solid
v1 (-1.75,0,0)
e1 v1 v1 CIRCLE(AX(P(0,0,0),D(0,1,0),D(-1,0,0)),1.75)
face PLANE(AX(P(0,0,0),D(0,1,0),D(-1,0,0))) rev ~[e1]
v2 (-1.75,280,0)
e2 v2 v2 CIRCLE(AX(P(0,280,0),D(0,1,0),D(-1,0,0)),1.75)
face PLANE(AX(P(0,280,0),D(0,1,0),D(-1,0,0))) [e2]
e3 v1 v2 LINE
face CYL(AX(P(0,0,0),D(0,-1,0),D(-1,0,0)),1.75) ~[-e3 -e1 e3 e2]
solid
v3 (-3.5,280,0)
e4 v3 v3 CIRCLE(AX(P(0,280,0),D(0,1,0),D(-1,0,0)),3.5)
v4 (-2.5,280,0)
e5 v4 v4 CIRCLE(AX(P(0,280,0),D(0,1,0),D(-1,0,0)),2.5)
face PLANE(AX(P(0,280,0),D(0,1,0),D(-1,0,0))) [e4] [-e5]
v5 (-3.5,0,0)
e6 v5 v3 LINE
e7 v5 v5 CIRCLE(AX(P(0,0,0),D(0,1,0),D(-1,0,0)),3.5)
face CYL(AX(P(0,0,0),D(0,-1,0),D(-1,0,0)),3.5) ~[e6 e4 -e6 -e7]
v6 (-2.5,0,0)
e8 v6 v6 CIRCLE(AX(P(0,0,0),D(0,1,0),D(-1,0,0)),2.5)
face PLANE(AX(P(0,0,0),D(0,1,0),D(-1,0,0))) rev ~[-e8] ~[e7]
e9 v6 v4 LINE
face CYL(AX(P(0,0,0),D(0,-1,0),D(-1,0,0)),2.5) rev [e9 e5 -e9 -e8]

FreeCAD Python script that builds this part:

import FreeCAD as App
import Part
import Sketcher

V = App.Vector
Q = App.Units.Quantity

doc = App.newDocument("Part")
params = doc.addObject("Spreadsheet::Sheet", "Params")
for row, (alias, value) in enumerate([
    ("sketch1_diameter", "3.5 mm"),
    ("pad1_length", "280 mm"),
    ("sketch2_diameter", "7 mm"),
    ("sketch2_diameter2", "5 mm"),
    ("pad2_length", "280 mm"),
], start=1):
    params.set(f"A{row}", alias)
    params.set(f"B{row}", "=" + value)
    params.setAlias(f"B{row}", alias)

body = doc.addObject("PartDesign::Body", "Body")
body.AllowCompound = True

# Sketch on XZ plane
sketch1 = body.newObject("Sketcher::SketchObject", "Sketch")
sketch1.AttachmentSupport = (doc.getObject("XZ_Plane"), [""])
sketch1.MapMode = "FlatFace"
sketch1.addGeometry(Part.Circle(V(0, 0, 0), V(0, 0, 1), 1.8), False)
sketch1.addConstraint([
    Sketcher.Constraint("Coincident", 0, 3, -1, 1),
    Sketcher.Constraint("Diameter", 0, Q("3.5 mm")),
])
sketch1.setExpression("Constraints[1]", "Params.sketch1_diameter")
pad1 = body.newObject("PartDesign::Pad", "Pad")
pad1.Profile = sketch1
pad1.setExpression("Length", "Params.pad1_length")
pad1.Reversed = True

# Sketch on XZ plane
sketch2 = body.newObject("Sketcher::SketchObject", "Sketch001")
sketch2.AttachmentSupport = (doc.getObject("XZ_Plane"), [""])
sketch2.MapMode = "FlatFace"
sketch2.addGeometry([
    Part.Circle(V(0, 0, 0), V(0, 0, 1), 3.5),
    Part.Circle(V(0, 0, 0), V(0, 0, 1), 2.5),
], False)
sketch2.addConstraint([
    Sketcher.Constraint("Coincident", 0, 3, -1, 1),
    Sketcher.Constraint("Coincident", 1, 3, -1, 1),
    Sketcher.Constraint("Diameter", 0, Q("7 mm")),
    Sketcher.Constraint("Diameter", 1, Q("5 mm")),
])
sketch2.setExpression("Constraints[2]", "Params.sketch2_diameter")
sketch2.setExpression("Constraints[3]", "Params.sketch2_diameter2")
pad2 = body.newObject("PartDesign::Pad", "Pad001")
pad2.Profile = sketch2
pad2.setExpression("Length", "Params.pad2_length")
pad2.Reversed = True

doc.recompute()
